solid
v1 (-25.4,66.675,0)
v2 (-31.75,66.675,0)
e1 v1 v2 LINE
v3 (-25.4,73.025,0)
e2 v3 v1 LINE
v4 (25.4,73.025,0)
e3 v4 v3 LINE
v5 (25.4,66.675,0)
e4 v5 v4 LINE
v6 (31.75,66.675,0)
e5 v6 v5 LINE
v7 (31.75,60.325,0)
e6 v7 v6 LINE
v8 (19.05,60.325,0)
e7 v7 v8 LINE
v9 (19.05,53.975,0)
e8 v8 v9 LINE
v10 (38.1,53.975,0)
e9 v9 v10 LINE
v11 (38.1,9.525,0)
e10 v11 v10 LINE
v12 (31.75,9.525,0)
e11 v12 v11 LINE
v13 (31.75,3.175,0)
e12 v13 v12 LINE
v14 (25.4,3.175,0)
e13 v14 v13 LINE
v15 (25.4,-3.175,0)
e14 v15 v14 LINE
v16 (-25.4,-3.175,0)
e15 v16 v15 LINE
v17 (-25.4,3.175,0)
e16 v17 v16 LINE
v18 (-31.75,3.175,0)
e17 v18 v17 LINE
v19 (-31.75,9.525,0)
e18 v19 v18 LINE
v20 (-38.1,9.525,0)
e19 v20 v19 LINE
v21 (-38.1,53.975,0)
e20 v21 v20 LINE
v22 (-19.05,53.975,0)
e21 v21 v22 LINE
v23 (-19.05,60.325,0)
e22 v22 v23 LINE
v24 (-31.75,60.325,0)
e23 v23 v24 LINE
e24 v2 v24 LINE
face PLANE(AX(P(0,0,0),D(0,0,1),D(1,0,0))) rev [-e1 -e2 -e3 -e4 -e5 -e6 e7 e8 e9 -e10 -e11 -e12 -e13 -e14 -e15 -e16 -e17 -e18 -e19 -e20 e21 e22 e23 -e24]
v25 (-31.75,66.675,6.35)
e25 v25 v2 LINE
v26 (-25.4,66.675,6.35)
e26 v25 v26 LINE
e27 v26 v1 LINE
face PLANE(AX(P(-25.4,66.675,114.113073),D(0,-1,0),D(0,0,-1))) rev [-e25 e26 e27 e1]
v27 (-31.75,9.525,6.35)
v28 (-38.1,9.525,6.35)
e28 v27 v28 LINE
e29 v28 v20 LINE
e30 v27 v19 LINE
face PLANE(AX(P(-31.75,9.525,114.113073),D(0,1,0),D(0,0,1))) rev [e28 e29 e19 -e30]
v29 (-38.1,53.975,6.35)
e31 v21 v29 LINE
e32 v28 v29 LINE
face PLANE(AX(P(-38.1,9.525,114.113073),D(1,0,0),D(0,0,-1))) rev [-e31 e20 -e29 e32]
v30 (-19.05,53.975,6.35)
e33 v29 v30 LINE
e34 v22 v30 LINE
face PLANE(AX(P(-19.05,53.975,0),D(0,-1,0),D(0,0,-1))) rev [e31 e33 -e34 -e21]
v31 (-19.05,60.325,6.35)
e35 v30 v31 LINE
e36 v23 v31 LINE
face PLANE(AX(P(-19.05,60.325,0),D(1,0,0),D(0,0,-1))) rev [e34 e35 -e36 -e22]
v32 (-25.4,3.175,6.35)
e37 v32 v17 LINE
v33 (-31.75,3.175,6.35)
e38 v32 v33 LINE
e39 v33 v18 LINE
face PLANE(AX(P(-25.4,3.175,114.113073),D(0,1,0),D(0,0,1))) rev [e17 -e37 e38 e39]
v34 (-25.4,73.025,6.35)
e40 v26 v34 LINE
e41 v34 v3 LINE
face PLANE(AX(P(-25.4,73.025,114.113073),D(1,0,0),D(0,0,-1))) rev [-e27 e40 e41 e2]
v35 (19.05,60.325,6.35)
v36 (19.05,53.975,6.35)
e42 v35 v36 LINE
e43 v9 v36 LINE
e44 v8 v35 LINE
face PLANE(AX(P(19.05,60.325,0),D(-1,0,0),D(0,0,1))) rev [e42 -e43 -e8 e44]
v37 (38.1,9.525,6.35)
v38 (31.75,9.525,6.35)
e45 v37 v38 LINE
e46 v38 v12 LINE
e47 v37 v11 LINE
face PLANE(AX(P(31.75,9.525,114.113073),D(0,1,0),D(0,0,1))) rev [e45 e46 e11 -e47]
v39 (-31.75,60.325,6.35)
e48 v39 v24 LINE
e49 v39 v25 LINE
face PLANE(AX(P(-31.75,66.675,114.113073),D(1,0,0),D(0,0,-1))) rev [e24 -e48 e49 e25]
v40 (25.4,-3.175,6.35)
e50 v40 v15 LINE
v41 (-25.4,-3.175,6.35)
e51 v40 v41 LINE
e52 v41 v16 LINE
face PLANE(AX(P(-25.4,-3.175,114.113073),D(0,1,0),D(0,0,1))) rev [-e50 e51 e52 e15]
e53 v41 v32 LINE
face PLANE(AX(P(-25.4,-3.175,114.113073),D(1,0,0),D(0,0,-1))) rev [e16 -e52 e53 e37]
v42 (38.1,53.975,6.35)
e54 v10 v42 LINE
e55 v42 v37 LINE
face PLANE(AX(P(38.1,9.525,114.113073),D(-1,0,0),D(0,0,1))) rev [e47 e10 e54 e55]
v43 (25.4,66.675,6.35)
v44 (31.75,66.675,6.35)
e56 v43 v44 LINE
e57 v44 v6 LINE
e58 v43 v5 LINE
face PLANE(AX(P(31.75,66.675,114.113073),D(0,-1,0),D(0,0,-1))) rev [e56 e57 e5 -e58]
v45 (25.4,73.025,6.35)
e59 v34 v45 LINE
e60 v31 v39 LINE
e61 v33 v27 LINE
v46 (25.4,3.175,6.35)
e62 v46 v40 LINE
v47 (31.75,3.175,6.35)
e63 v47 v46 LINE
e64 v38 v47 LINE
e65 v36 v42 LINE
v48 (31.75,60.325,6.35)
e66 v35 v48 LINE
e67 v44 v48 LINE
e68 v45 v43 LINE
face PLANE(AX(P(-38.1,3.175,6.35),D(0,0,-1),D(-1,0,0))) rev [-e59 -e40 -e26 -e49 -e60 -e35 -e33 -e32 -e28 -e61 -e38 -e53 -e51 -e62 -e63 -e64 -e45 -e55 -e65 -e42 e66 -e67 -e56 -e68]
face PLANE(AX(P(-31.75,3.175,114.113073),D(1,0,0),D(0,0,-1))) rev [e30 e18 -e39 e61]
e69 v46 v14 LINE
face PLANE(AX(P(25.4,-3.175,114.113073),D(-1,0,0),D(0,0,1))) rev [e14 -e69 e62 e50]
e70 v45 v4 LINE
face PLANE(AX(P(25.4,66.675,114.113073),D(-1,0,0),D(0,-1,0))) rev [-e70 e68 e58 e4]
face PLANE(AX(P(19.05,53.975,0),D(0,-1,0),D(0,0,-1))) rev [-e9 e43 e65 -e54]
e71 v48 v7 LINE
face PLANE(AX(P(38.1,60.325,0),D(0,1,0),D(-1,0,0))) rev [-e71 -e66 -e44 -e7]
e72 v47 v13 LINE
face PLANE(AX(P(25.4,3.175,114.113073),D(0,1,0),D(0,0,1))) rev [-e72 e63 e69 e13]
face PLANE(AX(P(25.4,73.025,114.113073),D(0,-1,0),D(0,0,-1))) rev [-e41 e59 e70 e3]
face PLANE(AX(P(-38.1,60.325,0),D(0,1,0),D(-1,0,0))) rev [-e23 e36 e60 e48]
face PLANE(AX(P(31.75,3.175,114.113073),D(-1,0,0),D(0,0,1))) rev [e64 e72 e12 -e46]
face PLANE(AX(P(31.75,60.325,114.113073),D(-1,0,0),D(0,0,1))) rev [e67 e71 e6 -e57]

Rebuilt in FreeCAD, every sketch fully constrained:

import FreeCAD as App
import Part
import Sketcher
from FreeCAD import Vector
Q = App.Units.Quantity

doc = App.newDocument("Part")
body = doc.addObject("PartDesign::Body", "Body")

# Sketch on XY plane
sketch1 = doc.addObject("Sketcher::SketchObject", "Sketch")
body.addObject(sketch1)
sketch1.AttachmentSupport = (doc.XY_Plane, [""])
sketch1.MapMode = "FlatFace"
sketch1.addGeometry([
    Part.LineSegment(Vector(-25, -3, 0), Vector(25, -3, 0)),  # 0
    Part.LineSegment(Vector(25, -3, 0), Vector(25, 3, 0)),  # 1
    Part.LineSegment(Vector(25, 3, 0), Vector(32, 3, 0)),  # 2
    Part.LineSegment(Vector(32, 3, 0), Vector(32, 10, 0)),  # 3
    Part.LineSegment(Vector(32, 10, 0), Vector(38, 10, 0)),  # 4
    Part.LineSegment(Vector(38, 10, 0), Vector(38, 60, 0)),  # 5
    Part.LineSegment(Vector(38, 60, 0), Vector(32, 60, 0)),  # 6
    Part.LineSegment(Vector(32, 60, 0), Vector(32, 67, 0)),  # 7
    Part.LineSegment(Vector(32, 67, 0), Vector(25, 67, 0)),  # 8
    Part.LineSegment(Vector(25, 67, 0), Vector(25, 73, 0)),  # 9
    Part.LineSegment(Vector(25, 73, 0), Vector(-25, 73, 0)),  # 10
    Part.LineSegment(Vector(-25, 73, 0), Vector(-25, 67, 0)),  # 11
    Part.LineSegment(Vector(-25, 67, 0), Vector(-32, 67, 0)),  # 12
    Part.LineSegment(Vector(-32, 67, 0), Vector(-32, 60, 0)),  # 13
    Part.LineSegment(Vector(-32, 60, 0), Vector(-38, 60, 0)),  # 14
    Part.LineSegment(Vector(-38, 60, 0), Vector(-38, 10, 0)),  # 15
    Part.LineSegment(Vector(-38, 10, 0), Vector(-32, 10, 0)),  # 16
    Part.LineSegment(Vector(-32, 10, 0), Vector(-32, 3, 0)),  # 17
    Part.LineSegment(Vector(-32, 3, 0), Vector(-25, 3, 0)),  # 18
    Part.LineSegment(Vector(-25, 3, 0), Vector(-25, -3, 0)),  # 19
], False)
sketch1.addConstraint([
    Sketcher.Constraint("Coincident", 0, 2, 1, 1),
    Sketcher.Constraint("Coincident", 1, 2, 2, 1),
    Sketcher.Constraint("Coincident", 2, 2, 3, 1),
    Sketcher.Constraint("Coincident", 3, 2, 4, 1),
    Sketcher.Constraint("Coincident", 4, 2, 5, 1),
    Sketcher.Constraint("Coincident", 5, 2, 6, 1),
    Sketcher.Constraint("Coincident", 6, 2, 7, 1),
    Sketcher.Constraint("Coincident", 7, 2, 8, 1),
    Sketcher.Constraint("Coincident", 8, 2, 9, 1),
    Sketcher.Constraint("Coincident", 9, 2, 10, 1),
    Sketcher.Constraint("Coincident", 10, 2, 11, 1),
    Sketcher.Constraint("Coincident", 11, 2, 12, 1),
    Sketcher.Constraint("Coincident", 12, 2, 13, 1),
    Sketcher.Constraint("Coincident", 13, 2, 14, 1),
    Sketcher.Constraint("Coincident", 14, 2, 15, 1),
    Sketcher.Constraint("Coincident", 15, 2, 16, 1),
    Sketcher.Constraint("Coincident", 16, 2, 17, 1),
    Sketcher.Constraint("Coincident", 17, 2, 18, 1),
    Sketcher.Constraint("Coincident", 18, 2, 19, 1),
    Sketcher.Constraint("Coincident", 19, 2, 0, 1),
    Sketcher.Constraint("Horizontal", 0),
    Sketcher.Constraint("Vertical", 1),
    Sketcher.Constraint("Horizontal", 2),
    Sketcher.Constraint("Vertical", 3),
    Sketcher.Constraint("Horizontal", 4),
    Sketcher.Constraint("Vertical", 5),
    Sketcher.Constraint("Horizontal", 6),
    Sketcher.Constraint("Vertical", 7),
    Sketcher.Constraint("Horizontal", 8),
    Sketcher.Constraint("Vertical", 9),
    Sketcher.Constraint("Horizontal", 10),
    Sketcher.Constraint("Vertical", 11),
    Sketcher.Constraint("Horizontal", 12),
    Sketcher.Constraint("Vertical", 13),
    Sketcher.Constraint("Horizontal", 14),
    Sketcher.Constraint("Vertical", 15),
    Sketcher.Constraint("Horizontal", 16),
    Sketcher.Constraint("Vertical", 17),
    Sketcher.Constraint("Horizontal", 18),
    Sketcher.Constraint("Vertical", 19),
    Sketcher.Constraint("Symmetric", 0, 2, 18, 2, -1, 1),
    Sketcher.Constraint("Symmetric", 8, 2, 11, 2, -2),
    Sketcher.Constraint("Symmetric", 6, 2, 13, 2, -2),
    Sketcher.Constraint("Symmetric", 4, 2, 15, 2, -2),
    Sketcher.Constraint("Symmetric", 2, 2, 17, 2, -2),
    Sketcher.Constraint("Vertical", 3, 2, 6, 2),
    Sketcher.Constraint("Vertical", 1, 2, 8, 2),
    Sketcher.Constraint("Equal", 2, 4),
    Sketcher.Constraint("Equal", 18, 1),
    Sketcher.Constraint("Equal", 1, 3),
    Sketcher.Constraint("Equal", 10, 5),
    Sketcher.Constraint("Equal", 3, 7),
    Sketcher.Constraint("Equal", 7, 9),
    Sketcher.Constraint("DistanceX", 0, 1, 0, 2, Q("2 in")),
    Sketcher.Constraint("DistanceX", 2, 1, 2, 2, Q("0.25 in")),
])
pad1 = doc.addObject("PartDesign::Pad", "Pad")
body.addObject(pad1)
pad1.Profile = sketch1
pad1.Length = Q("0.25 in")

# Sketch on XY plane
sketch2 = doc.addObject("Sketcher::SketchObject", "Sketch001")
body.addObject(sketch2)
sketch2.AttachmentSupport = (doc.XY_Plane, [""])
sketch2.MapMode = "FlatFace"
sketch2.AttachmentOffset = App.Placement(Vector(0, 0, 0.25 * 25.4), App.Rotation())
sketch2.addGeometry([
    Part.LineSegment(Vector(19, 60, 0), Vector(19, 54, 0)),  # 0
    Part.LineSegment(Vector(19, 54, 0), Vector(38, 54, 0)),  # 1
    Part.LineSegment(Vector(38, 54, 0), Vector(38, 60, 0)),  # 2
    Part.LineSegment(Vector(38, 60, 0), Vector(19, 60, 0)),  # 3
    Part.LineSegment(Vector(-38, 60, 0), Vector(-38, 54, 0)),  # 4
    Part.LineSegment(Vector(-38, 54, 0), Vector(-19, 54, 0)),  # 5
    Part.LineSegment(Vector(-19, 54, 0), Vector(-19, 60, 0)),  # 6
    Part.LineSegment(Vector(-19, 60, 0), Vector(-38, 60, 0)),  # 7
], False)
sketch2.addConstraint([
    Sketcher.Constraint("Coincident", 0, 2, 1, 1),
    Sketcher.Constraint("Coincident", 1, 2, 2, 1),
    Sketcher.Constraint("Coincident", 2, 2, 3, 1),
    Sketcher.Constraint("Coincident", 3, 2, 0, 1),
    Sketcher.Constraint("Coincident", 4, 2, 5, 1),
    Sketcher.Constraint("Coincident", 5, 2, 6, 1),
    Sketcher.Constraint("Coincident", 6, 2, 7, 1),
    Sketcher.Constraint("Coincident", 7, 2, 4, 1),
    Sketcher.Constraint("Vertical", 0),
    Sketcher.Constraint("Horizontal", 1),
    Sketcher.Constraint("Vertical", 2),
    Sketcher.Constraint("Horizontal", 3),
    Sketcher.Constraint("Vertical", 4),
    Sketcher.Constraint("Horizontal", 5),
    Sketcher.Constraint("Vertical", 6),
    Sketcher.Constraint("Horizontal", 7),
    Sketcher.Constraint("Symmetric", 1, 2, 4, 2, -2),
    Sketcher.Constraint("Symmetric", 3, 2, 6, 2, -2),
    Sketcher.Constraint("DistanceX", 4, 2, 1, 2, Q("3 in")),
    Sketcher.Constraint("DistanceX", 1, 1, 1, 2, Q("0.75 in")),
    Sketcher.Constraint("DistanceY", 0, 2, 0, 1, Q("0.25 in")),
    Sketcher.Constraint("DistanceY", -1, 1, 0, 2, Q("2.125 in")),
])
pocket1 = doc.addObject("PartDesign::Pocket", "Pocket")
body.addObject(pocket1)
pocket1.Profile = sketch2
pocket1.Type = "ThroughAll"

doc.recompute()
